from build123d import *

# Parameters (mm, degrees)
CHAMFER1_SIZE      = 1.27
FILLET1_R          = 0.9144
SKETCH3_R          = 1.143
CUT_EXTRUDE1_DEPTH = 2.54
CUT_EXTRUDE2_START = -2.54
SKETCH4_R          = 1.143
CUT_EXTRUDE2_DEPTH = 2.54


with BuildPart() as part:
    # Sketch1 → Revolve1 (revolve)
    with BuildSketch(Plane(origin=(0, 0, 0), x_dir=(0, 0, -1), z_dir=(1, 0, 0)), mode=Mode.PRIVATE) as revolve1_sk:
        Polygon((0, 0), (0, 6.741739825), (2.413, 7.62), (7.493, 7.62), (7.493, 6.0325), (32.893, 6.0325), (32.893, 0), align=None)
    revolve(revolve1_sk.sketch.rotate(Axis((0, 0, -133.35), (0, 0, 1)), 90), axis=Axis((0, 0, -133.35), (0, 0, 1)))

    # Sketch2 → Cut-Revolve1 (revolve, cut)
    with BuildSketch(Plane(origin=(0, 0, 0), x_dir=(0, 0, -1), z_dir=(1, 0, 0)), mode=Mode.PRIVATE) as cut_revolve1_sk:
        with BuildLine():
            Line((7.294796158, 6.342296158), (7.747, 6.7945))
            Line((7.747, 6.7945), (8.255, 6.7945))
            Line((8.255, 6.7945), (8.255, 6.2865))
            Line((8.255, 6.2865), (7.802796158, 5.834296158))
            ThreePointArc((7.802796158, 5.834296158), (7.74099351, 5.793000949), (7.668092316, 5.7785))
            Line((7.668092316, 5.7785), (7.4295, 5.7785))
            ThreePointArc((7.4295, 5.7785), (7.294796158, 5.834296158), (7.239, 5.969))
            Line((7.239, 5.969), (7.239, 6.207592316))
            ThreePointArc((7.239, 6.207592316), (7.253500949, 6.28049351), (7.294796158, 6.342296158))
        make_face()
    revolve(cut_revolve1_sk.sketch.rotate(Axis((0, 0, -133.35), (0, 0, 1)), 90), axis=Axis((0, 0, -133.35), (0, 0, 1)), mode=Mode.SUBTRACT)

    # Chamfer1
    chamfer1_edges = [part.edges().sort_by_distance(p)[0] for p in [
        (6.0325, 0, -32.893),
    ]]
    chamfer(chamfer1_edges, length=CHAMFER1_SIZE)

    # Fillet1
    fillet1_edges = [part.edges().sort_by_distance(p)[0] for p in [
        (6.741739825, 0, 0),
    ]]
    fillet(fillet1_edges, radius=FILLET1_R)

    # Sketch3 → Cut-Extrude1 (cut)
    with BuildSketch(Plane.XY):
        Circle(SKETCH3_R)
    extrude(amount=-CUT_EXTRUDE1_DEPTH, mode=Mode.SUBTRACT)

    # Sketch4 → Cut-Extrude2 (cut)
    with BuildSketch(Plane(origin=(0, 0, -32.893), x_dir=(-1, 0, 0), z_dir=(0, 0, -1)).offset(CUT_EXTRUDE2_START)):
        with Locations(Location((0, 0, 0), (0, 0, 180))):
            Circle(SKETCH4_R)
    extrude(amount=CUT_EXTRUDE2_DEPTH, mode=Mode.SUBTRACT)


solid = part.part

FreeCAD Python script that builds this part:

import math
import FreeCAD as App
import Part
import Sketcher
Q = App.Units.Quantity


def edges_at(feature, points):
    """Names of the edges that pass closest to the given points."""
    edges = feature.Shape.Edges
    near = lambda p: min(range(len(edges)), key=lambda i: edges[i].distToShape(Part.Vertex(*p))[0])
    return sorted({f"Edge{near(p) + 1}" for p in points})

doc = App.newDocument("Part")
body = doc.addObject("PartDesign::Body", "Body")

# Sketch on YZ plane
sketch1 = body.newObject("Sketcher::SketchObject", "Sketch")
sketch1.AttachmentSupport = (doc.getObject("YZ_Plane"), [""])
sketch1.MapMode = "FlatFace"
sketch1.addGeometry([
    Part.LineSegment(App.Vector(6.74174, 0, 0), App.Vector(0, 0, 0)),  # 0
    Part.LineSegment(App.Vector(0, 0, 0), App.Vector(0, -32.893, 0)),  # 1
    Part.LineSegment(App.Vector(0, -32.893, 0), App.Vector(6.0325, -32.893, 0)),  # 2
    Part.LineSegment(App.Vector(6.0325, -32.893, 0), App.Vector(6.0325, -7.493, 0)),  # 3
    Part.LineSegment(App.Vector(6.0325, -7.493, 0), App.Vector(7.62, -7.493, 0)),  # 4
    Part.LineSegment(App.Vector(7.62, -7.493, 0), App.Vector(7.62, -2.413, 0)),  # 5
    Part.LineSegment(App.Vector(7.62, -2.413, 0), App.Vector(6.74174, 0, 0)),  # 6
], False)
sketch1.addConstraint([
    Sketcher.Constraint("Coincident", 0, 2, 1, 1),
    Sketcher.Constraint("Coincident", 1, 2, 2, 1),
    Sketcher.Constraint("Coincident", 2, 2, 3, 1),
    Sketcher.Constraint("Coincident", 3, 2, 4, 1),
    Sketcher.Constraint("Coincident", 4, 2, 5, 1),
    Sketcher.Constraint("Coincident", 5, 2, 6, 1),
    Sketcher.Constraint("Coincident", 6, 2, 0, 1),
    Sketcher.Constraint("Horizontal", 0),
    Sketcher.Constraint("Vertical", 1),
    Sketcher.Constraint("Horizontal", 2),
    Sketcher.Constraint("Vertical", 3),
    Sketcher.Constraint("Horizontal", 4),
    Sketcher.Constraint("Vertical", 5),
    Sketcher.Constraint("Coincident", 0, 2, -1, 1),
    Sketcher.Constraint("DistanceY", 3, 1, 3, 2, Q("1 in")),
    Sketcher.Constraint("DistanceY", 5, 1, 5, 2, Q("0.2 in")),
    Sketcher.Constraint("Angle", 6, Q("110 deg")),
    Sketcher.Constraint("DistanceX", -1, 1, 4, 2, Q("0.3 in")),
    Sketcher.Constraint("DistanceX", 4, 1, 4, 2, Q("0.0625 in")),
    Sketcher.Constraint("DistanceY", 1, 2, 1, 1, Q("1.295 in")),
])
revolution = body.newObject("PartDesign::Revolution", "Revolution")
revolution.Profile = sketch1
revolution.ReferenceAxis = (sketch1, ["V_Axis"])
revolution.Angle = 360

# Sketch on YZ plane
sketch2 = body.newObject("Sketcher::SketchObject", "Sketch001")
sketch2.AttachmentSupport = (doc.getObject("YZ_Plane"), [""])
sketch2.MapMode = "FlatFace"
sketch2.addGeometry([
    Part.LineSegment(App.Vector(6.7945, -7.747, 0), App.Vector(6.342296, -7.294796, 0)),  # 0
    Part.ArcOfCircle(Part.Circle(App.Vector(6.207592, -7.4295, 0), App.Vector(0, 0, 1), 0.1905), math.radians(45), math.radians(90)),  # 1
    Part.LineSegment(App.Vector(6.207592, -7.239, 0), App.Vector(5.969, -7.239, 0)),  # 2
    Part.ArcOfCircle(Part.Circle(App.Vector(5.969, -7.4295, 0), App.Vector(0, 0, 1), 0.1905), math.radians(90), math.radians(180)),  # 3
    Part.LineSegment(App.Vector(5.7785, -7.4295, 0), App.Vector(5.7785, -7.668092, 0)),  # 4
    Part.ArcOfCircle(Part.Circle(App.Vector(5.969, -7.668092, 0), App.Vector(0, 0, 1), 0.1905), math.radians(180), math.radians(225)),  # 5
    Part.LineSegment(App.Vector(5.834296, -7.802796, 0), App.Vector(6.2865, -8.255, 0)),  # 6
    Part.LineSegment(App.Vector(6.2865, -8.255, 0), App.Vector(6.7945, -8.255, 0)),  # 7
    Part.LineSegment(App.Vector(6.7945, -8.255, 0), App.Vector(6.7945, -7.747, 0)),  # 8
], False)
sketch2.addConstraint([
    Sketcher.Constraint("Tangent", 0, 2, 1, 1),
    Sketcher.Constraint("Tangent", 1, 2, 2, 1),
    Sketcher.Constraint("Tangent", 2, 2, 3, 1),
    Sketcher.Constraint("Tangent", 3, 2, 4, 1),
    Sketcher.Constraint("Tangent", 4, 2, 5, 1),
    Sketcher.Constraint("Tangent", 5, 2, 6, 1),
    Sketcher.Constraint("Coincident", 6, 2, 7, 1),
    Sketcher.Constraint("Coincident", 7, 2, 8, 1),
    Sketcher.Constraint("Coincident", 8, 2, 0, 1),
    Sketcher.Constraint("Horizontal", 2),
    Sketcher.Constraint("Vertical", 4),
    Sketcher.Constraint("Horizontal", 7),
    Sketcher.Constraint("Vertical", 8),
    Sketcher.Constraint("Equal", 1, 3),
    Sketcher.Constraint("Equal", 3, 5),
    Sketcher.Constraint("Parallel", 0, 6),
    Sketcher.Constraint("Equal", 2, 4),
    Sketcher.Constraint("Equal", 7, 8),
    Sketcher.Constraint("Equal", 0, 6),
    Sketcher.Constraint("DistanceX", 7, 1, 7, 2, Q("0.02 in")),
    Sketcher.Constraint("Radius", 1, Q("0.0075 in")),
    Sketcher.Constraint("DistanceX", 4, 2, 6, 2, Q("0.02 in")),
    Sketcher.Constraint("DistanceX", -1, 1, 3, 3, Q("0.235 in")),
    Sketcher.Constraint("DistanceY", 1, 2, -1, 1, Q("0.285 in")),
])
groove = body.newObject("PartDesign::Groove", "Groove")
groove.Profile = sketch2
groove.ReferenceAxis = (sketch2, ["V_Axis"])
groove.Angle = 360
doc.recompute()

chamfer = body.newObject("PartDesign::Chamfer", "Chamfer")
chamfer.Base = (groove, edges_at(groove, [(6.032, 0, -32.893)]))
chamfer.Size = Q("0.05 in")
doc.recompute()

fillet = body.newObject("PartDesign::Fillet", "Fillet")
fillet.Base = (chamfer, edges_at(chamfer, [(6.742, 0, 0)]))
fillet.Radius = Q("0.036 in")

# Sketch on XY plane
sketch3 = body.newObject("Sketcher::SketchObject", "Sketch002")
sketch3.AttachmentSupport = (doc.getObject("XY_Plane"), [""])
sketch3.MapMode = "FlatFace"
sketch3.addGeometry(Part.Circle(App.Vector(0, 0, 0), App.Vector(0, 0, 1), 1.143), False)
sketch3.addConstraint([
    Sketcher.Constraint("Coincident", 0, 3, -1, 1),
    Sketcher.Constraint("Diameter", 0, Q("0.09 in")),
])
pocket1 = body.newObject("PartDesign::Pocket", "Pocket")
pocket1.Profile = sketch3
pocket1.Length = Q("0.1 in")

# Sketch on XY plane
sketch4 = body.newObject("Sketcher::SketchObject", "Sketch003")
sketch4.AttachmentSupport = (doc.getObject("XY_Plane"), [""])
sketch4.MapMode = "FlatFace"
sketch4.AttachmentOffset = App.Placement(App.Vector(0, 0, -1.195 * 25.4), App.Rotation())
sketch4.addGeometry(Part.Circle(App.Vector(0, 0, 0), App.Vector(0, 0, 1), 1.143), False)
sketch4.addConstraint([
    Sketcher.Constraint("Coincident", 0, 3, -1, 1),
    Sketcher.Constraint("Diameter", 0, Q("0.09 in")),
])
pocket2 = body.newObject("PartDesign::Pocket", "Pocket001")
pocket2.Profile = sketch4
pocket2.Length = Q("0.1 in")

doc.recompute()
